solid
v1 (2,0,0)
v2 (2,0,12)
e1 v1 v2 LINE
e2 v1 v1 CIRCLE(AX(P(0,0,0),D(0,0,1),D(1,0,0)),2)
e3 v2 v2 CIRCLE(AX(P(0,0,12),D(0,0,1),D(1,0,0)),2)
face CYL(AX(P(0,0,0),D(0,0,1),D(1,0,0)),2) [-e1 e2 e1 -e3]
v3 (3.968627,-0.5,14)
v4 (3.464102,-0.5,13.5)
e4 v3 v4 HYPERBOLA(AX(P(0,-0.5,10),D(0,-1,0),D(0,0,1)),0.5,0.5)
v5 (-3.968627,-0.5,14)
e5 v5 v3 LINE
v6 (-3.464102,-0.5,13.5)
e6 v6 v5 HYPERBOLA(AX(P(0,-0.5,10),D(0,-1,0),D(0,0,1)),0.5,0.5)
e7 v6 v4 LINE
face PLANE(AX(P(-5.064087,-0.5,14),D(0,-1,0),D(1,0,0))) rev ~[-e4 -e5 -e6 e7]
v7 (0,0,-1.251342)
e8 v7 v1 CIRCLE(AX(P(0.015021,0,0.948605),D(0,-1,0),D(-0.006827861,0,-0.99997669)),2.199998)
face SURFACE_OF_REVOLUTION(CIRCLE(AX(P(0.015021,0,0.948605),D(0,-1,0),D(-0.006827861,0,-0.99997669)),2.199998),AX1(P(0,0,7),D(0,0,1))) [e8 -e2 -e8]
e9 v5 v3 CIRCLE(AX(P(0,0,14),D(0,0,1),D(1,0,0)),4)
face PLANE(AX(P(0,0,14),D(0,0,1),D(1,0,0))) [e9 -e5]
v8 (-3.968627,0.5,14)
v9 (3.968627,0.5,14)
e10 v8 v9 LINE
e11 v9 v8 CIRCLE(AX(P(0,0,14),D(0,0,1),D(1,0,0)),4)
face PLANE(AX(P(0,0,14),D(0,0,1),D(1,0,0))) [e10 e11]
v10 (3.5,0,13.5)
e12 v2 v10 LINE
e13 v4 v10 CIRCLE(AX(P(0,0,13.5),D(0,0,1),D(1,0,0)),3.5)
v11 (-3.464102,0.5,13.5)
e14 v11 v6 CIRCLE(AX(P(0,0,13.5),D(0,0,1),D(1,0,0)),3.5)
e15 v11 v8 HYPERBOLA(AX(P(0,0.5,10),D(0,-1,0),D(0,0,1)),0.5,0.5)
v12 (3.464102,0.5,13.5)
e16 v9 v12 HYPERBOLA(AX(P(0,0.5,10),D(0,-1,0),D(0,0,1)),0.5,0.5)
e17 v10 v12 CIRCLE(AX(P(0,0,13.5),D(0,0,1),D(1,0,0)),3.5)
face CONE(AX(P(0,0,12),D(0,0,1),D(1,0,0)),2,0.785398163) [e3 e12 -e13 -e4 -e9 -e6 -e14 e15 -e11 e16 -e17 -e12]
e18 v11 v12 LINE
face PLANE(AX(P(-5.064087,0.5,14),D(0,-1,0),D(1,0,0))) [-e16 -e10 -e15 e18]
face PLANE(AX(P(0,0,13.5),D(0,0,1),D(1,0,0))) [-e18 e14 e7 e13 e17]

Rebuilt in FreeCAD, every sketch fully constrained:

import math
import FreeCAD as App
import Part
import Sketcher

V = App.Vector
Q = App.Units.Quantity

doc = App.newDocument("Part")
body = doc.addObject("PartDesign::Body", "Body")

# Sketch on XZ plane
sketch1 = body.newObject("Sketcher::SketchObject", "Sketch")
sketch1.AttachmentSupport = (doc.getObject("XZ_Plane"), [""])
sketch1.MapMode = "FlatFace"
sketch1.addGeometry([
    Part.LineSegment(V(0, 14, 0), V(0, -1.3, 0)),  # 0
    Part.ArcOfCircle(Part.Circle(V(0, 0.9, 0), V(0, 0, 1), 2.2), math.radians(-90), math.radians(-26)),  # 1
    Part.LineSegment(V(2, 0, 0), V(2, 12, 0)),  # 2
    Part.LineSegment(V(2, 12, 0), V(4, 14, 0)),  # 3
    Part.LineSegment(V(4, 14, 0), V(0, 14, 0)),  # 4
], False)
sketch1.addConstraint([
    Sketcher.Constraint("Coincident", 0, 2, 1, 1),
    Sketcher.Constraint("Coincident", 1, 2, 2, 1),
    Sketcher.Constraint("Coincident", 2, 2, 3, 1),
    Sketcher.Constraint("Coincident", 3, 2, 4, 1),
    Sketcher.Constraint("Coincident", 4, 2, 0, 1),
    Sketcher.Constraint("Vertical", 0),
    Sketcher.Constraint("Vertical", 2),
    Sketcher.Constraint("Horizontal", 4),
    Sketcher.Constraint("PointOnObject", 0, 2, -2),
    Sketcher.Constraint("PointOnObject", 1, 2, -1),
    Sketcher.Constraint("Radius", 1, Q("2.199998 mm")),
    Sketcher.Constraint("DistanceX", 4, 2, 4, 1, Q("4 mm")),
    Sketcher.Constraint("DistanceY", 2, 1, 2, 2, Q("12 mm")),
    Sketcher.Constraint("Angle", 3, Q("45 deg")),
    Sketcher.Constraint("DistanceX", -1, 1, 1, 2, Q("2 mm")),
    Sketcher.Constraint("DistanceY", 0, 2, 0, 1, Q("15.251342 mm")),
])
revolution = body.newObject("PartDesign::Revolution", "Revolution")
revolution.Profile = sketch1
revolution.ReferenceAxis = (sketch1, ["V_Axis"])
revolution.Angle = 360

# Sketch on XY plane
sketch2 = body.newObject("Sketcher::SketchObject", "Sketch001")
sketch2.AttachmentSupport = (doc.getObject("XY_Plane"), [""])
sketch2.MapMode = "FlatFace"
sketch2.AttachmentOffset = App.Placement(V(0, 0, 14), App.Rotation())
sketch2.addGeometry([
    Part.LineSegment(V(-5.1, 0.5, 0), V(-5.1, -0.5, 0)),
    Part.LineSegment(V(-5.1, -0.5, 0), V(5.1, -0.5, 0)),
    Part.LineSegment(V(5.1, -0.5, 0), V(5.1, 0.5, 0)),
    Part.LineSegment(V(5.1, 0.5, 0), V(-5.1, 0.5, 0)),
], False)
sketch2.addConstraint([
    Sketcher.Constraint("Coincident", 0, 2, 1, 1),
    Sketcher.Constraint("Coincident", 1, 2, 2, 1),
    Sketcher.Constraint("Coincident", 2, 2, 3, 1),
    Sketcher.Constraint("Coincident", 3, 2, 0, 1),
    Sketcher.Constraint("Vertical", 0),
    Sketcher.Constraint("Horizontal", 1),
    Sketcher.Constraint("Vertical", 2),
    Sketcher.Constraint("Horizontal", 3),
    Sketcher.Constraint("Symmetric", 0, 2, 2, 2, -1, 1),
    Sketcher.Constraint("DistanceY", 0, 2, 0, 1, Q("1 mm")),
    Sketcher.Constraint("DistanceX", 1, 1, 1, 2, Q("10.128174 mm")),
])
pocket1 = body.newObject("PartDesign::Pocket", "Pocket")
pocket1.Profile = sketch2
pocket1.Length = 0.5

doc.recompute()
